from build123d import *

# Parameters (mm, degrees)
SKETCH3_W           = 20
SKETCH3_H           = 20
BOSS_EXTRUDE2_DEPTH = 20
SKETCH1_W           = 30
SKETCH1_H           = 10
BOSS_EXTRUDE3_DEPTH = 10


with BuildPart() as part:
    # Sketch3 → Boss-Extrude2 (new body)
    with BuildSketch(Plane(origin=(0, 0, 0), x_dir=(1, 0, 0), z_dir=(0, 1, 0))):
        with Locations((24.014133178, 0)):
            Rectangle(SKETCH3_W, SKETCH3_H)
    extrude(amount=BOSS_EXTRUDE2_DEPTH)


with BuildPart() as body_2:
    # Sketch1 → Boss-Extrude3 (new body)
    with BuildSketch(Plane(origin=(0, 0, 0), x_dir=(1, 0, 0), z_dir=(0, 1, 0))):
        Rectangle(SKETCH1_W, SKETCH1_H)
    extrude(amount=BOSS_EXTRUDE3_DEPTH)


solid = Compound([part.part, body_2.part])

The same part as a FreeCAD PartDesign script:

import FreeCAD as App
import Part
import Sketcher

V = App.Vector
Q = App.Units.Quantity


def add_polygon(sketch, points):
    """Adds a closed chain of lines whose ends are joined by coincident constraints."""
    first, n = sketch.GeometryCount, len(points)
    for a, b in zip(points, points[1:] + points[:1]):
        sketch.addGeometry(Part.LineSegment(App.Vector(*a, 0), App.Vector(*b, 0)), False)
    for i in range(n):
        sketch.addConstraint(Sketcher.Constraint("Coincident", first + i, 2, first + (i + 1) % n, 1))

doc = App.newDocument("Part")
body = doc.addObject("PartDesign::Body", "Body")

# Sketch on XZ plane
sketch1 = body.newObject("Sketcher::SketchObject", "Sketch")
sketch1.AttachmentSupport = (doc.getObject("XZ_Plane"), [""])
sketch1.MapMode = "FlatFace"
add_polygon(sketch1, [(14, -10), (14, 10), (34, 10), (34, -10)])  # lines 0-3
sketch1.addConstraint(Sketcher.Constraint("Vertical", 0))
sketch1.addConstraint(Sketcher.Constraint("Horizontal", 1))
sketch1.addConstraint(Sketcher.Constraint("Vertical", 2))
sketch1.addConstraint(Sketcher.Constraint("Horizontal", 3))
sketch1.addConstraint(Sketcher.Constraint("Equal", 3, 0))
sketch1.addConstraint(Sketcher.Constraint("DistanceX", 1, 1, 1, 2, Q("20 mm")))
sketch1.addConstraint(Sketcher.Constraint("DistanceY", -1, 1, 0, 2, Q("10 mm")))
sketch1.addConstraint(Sketcher.Constraint("DistanceX", -1, 1, 0, 2, Q("14.014133 mm")))
pad1 = body.newObject("PartDesign::Pad", "Pad")
pad1.Profile = sketch1
pad1.Length = 20
pad1.Reversed = True
body2 = doc.addObject("PartDesign::Body", "Body001")

# Sketch on XZ plane
sketch2 = body2.newObject("Sketcher::SketchObject", "Sketch001")
sketch2.AttachmentSupport = (doc.getObject("XZ_Plane001"), [""])
sketch2.MapMode = "FlatFace"
add_polygon(sketch2, [(-15, -5), (-15, 5), (15, 5), (15, -5)])  # lines 0-3
sketch2.addConstraint(Sketcher.Constraint("Vertical", 0))
sketch2.addConstraint(Sketcher.Constraint("Horizontal", 1))
sketch2.addConstraint(Sketcher.Constraint("Vertical", 2))
sketch2.addConstraint(Sketcher.Constraint("Horizontal", 3))
sketch2.addConstraint(Sketcher.Constraint("Symmetric", 0, 2, 2, 2, -1, 1))
sketch2.addConstraint(Sketcher.Constraint("DistanceX", 1, 1, 1, 2, Q("30 mm")))
sketch2.addConstraint(Sketcher.Constraint("DistanceY", 0, 1, 0, 2, Q("10 mm")))
pad2 = body2.newObject("PartDesign::Pad", "Pad001")
pad2.Profile = sketch2
pad2.Length = 10
pad2.Reversed = True

doc.recompute()
